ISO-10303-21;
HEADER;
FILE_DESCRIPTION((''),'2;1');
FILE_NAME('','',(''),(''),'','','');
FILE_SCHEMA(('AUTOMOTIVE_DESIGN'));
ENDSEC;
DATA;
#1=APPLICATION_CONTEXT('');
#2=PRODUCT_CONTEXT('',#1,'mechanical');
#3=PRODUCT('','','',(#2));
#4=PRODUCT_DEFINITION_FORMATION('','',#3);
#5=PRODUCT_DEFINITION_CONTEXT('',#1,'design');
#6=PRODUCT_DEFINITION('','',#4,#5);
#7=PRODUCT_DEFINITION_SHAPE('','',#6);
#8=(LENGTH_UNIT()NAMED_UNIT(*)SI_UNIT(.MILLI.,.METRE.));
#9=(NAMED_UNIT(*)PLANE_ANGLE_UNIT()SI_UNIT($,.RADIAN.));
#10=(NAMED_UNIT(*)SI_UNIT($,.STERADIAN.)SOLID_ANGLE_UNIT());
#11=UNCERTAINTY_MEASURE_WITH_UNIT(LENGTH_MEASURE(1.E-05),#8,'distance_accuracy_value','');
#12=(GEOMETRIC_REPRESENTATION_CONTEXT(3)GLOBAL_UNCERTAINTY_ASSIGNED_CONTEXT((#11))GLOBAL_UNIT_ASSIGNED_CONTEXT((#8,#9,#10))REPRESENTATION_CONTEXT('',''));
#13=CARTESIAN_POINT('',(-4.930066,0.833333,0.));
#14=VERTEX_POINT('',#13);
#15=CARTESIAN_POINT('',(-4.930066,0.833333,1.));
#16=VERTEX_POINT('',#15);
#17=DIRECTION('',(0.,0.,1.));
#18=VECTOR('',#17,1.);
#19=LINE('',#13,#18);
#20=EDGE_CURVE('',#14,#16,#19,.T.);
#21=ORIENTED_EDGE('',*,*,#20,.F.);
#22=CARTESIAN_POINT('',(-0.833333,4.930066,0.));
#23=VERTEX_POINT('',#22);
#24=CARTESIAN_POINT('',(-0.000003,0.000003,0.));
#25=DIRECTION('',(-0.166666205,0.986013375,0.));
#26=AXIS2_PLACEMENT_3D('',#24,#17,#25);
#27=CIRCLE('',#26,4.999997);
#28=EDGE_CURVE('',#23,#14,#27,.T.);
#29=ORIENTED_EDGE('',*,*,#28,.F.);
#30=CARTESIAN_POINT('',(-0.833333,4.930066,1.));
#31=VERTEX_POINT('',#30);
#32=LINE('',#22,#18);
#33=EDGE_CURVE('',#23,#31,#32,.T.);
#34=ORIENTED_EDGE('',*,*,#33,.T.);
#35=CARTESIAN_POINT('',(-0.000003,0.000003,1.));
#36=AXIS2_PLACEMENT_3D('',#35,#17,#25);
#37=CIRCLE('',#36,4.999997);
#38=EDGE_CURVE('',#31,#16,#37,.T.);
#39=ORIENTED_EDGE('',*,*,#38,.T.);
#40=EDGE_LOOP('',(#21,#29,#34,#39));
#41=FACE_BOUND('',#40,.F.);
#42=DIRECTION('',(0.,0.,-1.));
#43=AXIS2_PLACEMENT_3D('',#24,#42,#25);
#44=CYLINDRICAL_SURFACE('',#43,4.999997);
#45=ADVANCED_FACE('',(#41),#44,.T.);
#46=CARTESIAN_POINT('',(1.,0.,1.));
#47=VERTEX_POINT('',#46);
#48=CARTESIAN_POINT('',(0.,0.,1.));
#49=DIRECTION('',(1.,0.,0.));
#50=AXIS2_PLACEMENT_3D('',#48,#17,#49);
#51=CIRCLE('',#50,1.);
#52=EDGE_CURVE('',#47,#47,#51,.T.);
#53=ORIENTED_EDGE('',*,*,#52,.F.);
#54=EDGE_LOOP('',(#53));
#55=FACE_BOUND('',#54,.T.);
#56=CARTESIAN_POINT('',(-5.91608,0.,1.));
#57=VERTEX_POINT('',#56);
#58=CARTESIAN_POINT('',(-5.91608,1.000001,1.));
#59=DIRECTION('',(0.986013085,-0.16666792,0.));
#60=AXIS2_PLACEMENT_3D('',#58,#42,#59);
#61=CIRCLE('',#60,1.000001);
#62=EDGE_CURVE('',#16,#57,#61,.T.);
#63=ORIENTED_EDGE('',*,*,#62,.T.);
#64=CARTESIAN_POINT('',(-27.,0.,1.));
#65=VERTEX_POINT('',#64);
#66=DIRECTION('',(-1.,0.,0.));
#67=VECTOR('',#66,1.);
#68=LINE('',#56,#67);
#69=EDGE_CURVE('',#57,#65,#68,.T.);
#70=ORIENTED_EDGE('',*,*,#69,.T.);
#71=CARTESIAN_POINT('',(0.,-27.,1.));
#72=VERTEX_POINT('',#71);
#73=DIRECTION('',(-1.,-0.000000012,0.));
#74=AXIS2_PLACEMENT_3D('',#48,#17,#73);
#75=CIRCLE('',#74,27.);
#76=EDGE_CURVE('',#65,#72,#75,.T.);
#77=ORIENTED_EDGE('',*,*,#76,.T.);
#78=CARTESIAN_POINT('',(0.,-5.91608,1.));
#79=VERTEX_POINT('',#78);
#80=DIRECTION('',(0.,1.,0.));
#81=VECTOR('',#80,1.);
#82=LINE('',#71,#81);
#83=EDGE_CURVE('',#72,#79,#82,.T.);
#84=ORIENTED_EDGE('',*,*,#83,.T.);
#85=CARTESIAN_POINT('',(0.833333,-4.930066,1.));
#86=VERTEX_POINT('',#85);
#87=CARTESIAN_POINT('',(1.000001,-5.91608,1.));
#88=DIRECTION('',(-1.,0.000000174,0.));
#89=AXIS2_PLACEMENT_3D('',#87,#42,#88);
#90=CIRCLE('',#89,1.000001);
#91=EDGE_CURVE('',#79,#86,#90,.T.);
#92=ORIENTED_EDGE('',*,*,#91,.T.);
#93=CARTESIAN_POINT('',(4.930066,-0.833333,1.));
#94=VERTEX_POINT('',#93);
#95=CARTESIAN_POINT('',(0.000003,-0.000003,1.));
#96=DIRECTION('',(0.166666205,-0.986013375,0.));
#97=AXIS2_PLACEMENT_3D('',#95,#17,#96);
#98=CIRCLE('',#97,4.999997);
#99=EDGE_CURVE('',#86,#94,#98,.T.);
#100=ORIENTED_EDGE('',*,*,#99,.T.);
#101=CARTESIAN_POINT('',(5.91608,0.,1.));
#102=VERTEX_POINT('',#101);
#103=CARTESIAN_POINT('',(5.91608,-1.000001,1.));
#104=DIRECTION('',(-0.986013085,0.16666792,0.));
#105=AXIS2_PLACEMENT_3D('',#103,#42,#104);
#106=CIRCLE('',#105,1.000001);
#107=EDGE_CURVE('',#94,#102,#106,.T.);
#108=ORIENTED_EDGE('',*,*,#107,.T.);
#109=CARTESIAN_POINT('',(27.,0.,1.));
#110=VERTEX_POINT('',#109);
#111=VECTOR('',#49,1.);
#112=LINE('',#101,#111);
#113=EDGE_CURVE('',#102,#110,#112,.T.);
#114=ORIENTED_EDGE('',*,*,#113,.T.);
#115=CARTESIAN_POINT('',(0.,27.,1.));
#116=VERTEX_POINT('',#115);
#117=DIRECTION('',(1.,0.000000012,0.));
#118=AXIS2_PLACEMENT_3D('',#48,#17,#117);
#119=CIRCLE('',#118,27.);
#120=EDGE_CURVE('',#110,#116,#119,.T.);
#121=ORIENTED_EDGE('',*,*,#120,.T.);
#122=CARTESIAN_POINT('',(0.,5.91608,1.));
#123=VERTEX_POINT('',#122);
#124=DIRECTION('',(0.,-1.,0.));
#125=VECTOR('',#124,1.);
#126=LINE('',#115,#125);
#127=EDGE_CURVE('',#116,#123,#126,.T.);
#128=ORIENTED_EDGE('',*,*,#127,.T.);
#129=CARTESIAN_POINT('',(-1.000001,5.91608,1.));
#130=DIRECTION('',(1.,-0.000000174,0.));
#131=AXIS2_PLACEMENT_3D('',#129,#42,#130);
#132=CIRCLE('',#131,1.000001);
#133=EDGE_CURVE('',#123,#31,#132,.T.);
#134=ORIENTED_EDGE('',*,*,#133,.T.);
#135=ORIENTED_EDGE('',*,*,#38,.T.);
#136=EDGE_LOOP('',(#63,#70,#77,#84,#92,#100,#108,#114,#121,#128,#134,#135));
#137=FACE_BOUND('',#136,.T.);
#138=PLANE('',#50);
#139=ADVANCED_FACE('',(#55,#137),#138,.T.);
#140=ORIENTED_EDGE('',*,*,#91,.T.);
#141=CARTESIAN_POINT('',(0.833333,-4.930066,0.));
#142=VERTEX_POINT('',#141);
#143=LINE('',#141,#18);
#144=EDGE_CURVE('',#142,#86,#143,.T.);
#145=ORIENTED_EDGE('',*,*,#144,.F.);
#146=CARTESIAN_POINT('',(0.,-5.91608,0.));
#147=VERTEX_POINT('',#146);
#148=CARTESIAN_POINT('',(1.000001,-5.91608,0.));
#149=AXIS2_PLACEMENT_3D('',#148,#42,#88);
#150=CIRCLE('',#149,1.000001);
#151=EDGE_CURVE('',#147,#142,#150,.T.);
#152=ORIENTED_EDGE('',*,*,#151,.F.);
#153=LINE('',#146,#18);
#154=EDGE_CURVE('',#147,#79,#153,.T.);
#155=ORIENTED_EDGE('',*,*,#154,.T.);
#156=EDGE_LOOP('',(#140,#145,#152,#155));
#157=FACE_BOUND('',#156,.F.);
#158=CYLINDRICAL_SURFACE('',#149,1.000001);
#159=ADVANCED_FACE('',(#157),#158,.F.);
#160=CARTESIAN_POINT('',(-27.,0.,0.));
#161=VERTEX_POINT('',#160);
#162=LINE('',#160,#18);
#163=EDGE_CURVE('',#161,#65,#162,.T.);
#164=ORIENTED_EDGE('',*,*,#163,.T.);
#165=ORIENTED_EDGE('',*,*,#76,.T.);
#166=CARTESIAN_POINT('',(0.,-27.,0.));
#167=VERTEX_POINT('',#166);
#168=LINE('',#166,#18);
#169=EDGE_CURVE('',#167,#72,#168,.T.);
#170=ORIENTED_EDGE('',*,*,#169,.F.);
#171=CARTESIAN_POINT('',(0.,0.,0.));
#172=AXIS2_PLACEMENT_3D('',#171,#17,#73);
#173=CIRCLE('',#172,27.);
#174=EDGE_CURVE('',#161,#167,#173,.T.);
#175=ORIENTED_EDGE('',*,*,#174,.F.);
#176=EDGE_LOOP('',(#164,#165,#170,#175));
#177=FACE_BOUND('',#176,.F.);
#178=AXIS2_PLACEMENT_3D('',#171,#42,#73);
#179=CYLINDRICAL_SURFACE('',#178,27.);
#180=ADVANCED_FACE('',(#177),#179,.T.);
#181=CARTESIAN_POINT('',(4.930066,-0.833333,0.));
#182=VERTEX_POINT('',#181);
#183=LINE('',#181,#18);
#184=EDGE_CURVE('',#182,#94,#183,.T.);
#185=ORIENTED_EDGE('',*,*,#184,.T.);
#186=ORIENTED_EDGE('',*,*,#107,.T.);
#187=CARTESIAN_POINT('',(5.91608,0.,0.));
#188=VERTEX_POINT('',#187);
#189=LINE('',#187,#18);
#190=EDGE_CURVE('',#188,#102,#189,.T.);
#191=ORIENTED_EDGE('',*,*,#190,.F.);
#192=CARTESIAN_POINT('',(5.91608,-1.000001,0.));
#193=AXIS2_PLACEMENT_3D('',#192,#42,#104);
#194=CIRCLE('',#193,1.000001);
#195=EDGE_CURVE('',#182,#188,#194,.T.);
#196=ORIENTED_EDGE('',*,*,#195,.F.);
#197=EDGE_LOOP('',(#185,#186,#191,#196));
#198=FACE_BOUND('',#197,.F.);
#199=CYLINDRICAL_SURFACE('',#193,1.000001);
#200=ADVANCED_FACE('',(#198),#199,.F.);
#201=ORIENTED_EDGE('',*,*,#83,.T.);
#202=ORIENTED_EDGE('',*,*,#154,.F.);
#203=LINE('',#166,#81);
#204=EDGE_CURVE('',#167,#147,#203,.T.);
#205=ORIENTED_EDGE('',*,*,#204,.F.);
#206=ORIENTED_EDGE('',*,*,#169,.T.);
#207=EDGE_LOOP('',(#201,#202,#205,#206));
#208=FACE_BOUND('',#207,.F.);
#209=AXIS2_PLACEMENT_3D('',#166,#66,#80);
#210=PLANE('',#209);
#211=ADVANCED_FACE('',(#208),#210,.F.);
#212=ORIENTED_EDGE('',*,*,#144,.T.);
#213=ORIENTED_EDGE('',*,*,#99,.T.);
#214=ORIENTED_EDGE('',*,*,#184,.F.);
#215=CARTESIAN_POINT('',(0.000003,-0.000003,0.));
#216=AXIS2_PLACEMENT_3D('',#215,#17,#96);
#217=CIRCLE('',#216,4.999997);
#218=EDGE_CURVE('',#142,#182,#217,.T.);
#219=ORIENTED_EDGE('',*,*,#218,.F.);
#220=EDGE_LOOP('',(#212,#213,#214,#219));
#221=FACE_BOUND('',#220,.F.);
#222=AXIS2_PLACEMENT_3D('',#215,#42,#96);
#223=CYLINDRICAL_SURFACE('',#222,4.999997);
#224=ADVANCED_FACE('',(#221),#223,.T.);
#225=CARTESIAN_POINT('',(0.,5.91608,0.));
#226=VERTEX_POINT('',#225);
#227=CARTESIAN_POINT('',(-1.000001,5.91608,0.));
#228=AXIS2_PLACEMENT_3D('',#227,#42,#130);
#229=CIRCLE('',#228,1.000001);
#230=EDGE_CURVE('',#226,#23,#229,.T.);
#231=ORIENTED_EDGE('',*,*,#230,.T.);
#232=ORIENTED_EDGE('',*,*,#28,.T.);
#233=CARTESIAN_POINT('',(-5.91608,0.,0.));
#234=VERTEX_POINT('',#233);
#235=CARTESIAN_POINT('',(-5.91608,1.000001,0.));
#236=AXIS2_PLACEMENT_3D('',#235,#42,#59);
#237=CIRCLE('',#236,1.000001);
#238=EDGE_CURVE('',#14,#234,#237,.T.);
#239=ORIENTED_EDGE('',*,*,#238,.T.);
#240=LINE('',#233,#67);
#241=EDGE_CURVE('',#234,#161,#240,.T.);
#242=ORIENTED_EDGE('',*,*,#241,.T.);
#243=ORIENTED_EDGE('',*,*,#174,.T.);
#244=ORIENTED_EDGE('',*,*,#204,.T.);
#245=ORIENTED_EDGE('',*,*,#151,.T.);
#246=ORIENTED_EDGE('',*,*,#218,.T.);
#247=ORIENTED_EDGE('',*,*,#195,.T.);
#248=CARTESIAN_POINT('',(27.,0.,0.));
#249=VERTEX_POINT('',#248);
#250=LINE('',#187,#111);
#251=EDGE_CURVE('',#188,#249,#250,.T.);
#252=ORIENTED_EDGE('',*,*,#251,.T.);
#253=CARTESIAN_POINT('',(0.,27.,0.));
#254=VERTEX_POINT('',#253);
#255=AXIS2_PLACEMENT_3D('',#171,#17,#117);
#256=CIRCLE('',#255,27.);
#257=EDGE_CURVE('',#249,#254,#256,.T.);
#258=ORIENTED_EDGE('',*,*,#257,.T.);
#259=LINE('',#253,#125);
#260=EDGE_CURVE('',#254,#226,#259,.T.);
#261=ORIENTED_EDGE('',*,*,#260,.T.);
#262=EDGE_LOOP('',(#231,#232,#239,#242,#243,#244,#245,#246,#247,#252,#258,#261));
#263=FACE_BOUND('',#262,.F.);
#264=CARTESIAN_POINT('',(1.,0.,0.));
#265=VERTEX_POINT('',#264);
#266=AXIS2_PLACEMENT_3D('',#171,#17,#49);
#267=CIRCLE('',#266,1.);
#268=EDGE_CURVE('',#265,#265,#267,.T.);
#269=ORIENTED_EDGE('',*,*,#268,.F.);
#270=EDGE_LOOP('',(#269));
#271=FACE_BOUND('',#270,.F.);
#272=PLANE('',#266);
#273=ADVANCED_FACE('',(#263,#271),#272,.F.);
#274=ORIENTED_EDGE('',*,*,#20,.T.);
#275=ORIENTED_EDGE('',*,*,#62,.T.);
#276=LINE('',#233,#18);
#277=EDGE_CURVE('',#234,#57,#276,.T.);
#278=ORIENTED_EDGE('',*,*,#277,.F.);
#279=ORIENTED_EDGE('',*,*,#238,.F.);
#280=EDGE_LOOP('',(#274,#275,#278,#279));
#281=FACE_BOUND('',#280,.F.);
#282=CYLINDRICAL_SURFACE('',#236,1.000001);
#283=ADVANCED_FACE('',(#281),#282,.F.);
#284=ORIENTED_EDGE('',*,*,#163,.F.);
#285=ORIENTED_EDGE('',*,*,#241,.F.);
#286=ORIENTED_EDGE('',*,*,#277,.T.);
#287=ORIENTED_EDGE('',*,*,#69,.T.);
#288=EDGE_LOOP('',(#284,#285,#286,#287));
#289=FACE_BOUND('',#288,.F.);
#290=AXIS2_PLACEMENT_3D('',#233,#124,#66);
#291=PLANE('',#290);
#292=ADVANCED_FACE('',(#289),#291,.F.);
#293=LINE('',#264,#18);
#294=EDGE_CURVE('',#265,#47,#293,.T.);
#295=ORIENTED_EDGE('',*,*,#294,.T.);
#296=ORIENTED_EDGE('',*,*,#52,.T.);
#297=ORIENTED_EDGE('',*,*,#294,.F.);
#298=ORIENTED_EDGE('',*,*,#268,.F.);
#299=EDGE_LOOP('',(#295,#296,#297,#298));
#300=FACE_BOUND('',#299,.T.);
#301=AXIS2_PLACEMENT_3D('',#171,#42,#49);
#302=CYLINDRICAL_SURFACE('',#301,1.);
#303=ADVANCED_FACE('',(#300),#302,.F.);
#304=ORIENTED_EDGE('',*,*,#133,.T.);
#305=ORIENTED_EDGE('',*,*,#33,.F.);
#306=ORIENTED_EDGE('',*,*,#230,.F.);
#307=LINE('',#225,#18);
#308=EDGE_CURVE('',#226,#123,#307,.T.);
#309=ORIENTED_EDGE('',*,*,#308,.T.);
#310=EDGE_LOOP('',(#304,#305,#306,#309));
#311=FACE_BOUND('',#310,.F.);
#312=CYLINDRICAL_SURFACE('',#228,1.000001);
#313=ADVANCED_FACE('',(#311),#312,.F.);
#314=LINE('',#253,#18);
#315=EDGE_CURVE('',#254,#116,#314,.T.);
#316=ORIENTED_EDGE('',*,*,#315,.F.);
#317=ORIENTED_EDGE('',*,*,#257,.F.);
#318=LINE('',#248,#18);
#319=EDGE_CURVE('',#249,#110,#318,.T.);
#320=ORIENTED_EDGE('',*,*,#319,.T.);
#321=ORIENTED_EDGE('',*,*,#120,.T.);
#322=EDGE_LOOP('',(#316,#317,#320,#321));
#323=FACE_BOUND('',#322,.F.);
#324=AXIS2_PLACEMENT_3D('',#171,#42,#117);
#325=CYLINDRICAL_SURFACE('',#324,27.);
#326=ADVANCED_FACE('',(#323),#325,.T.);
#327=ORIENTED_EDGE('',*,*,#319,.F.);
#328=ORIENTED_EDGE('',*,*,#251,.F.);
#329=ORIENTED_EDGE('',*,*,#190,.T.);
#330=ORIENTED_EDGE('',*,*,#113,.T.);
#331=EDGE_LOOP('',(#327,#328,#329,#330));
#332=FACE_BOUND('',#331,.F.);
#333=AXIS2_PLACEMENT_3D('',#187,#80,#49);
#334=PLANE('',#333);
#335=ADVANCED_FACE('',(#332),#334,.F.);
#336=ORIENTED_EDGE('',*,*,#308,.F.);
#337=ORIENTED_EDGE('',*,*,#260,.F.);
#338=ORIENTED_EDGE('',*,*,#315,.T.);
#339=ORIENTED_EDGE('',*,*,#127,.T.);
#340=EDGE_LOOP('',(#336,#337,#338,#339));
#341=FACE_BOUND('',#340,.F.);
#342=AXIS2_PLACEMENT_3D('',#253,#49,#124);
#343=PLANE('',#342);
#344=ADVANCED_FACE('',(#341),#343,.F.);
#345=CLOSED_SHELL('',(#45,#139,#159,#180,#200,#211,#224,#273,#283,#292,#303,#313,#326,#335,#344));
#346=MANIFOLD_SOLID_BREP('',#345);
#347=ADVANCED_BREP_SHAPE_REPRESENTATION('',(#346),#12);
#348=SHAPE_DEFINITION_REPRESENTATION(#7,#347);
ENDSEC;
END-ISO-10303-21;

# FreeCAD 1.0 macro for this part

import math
import FreeCAD as App
import Part
import Sketcher

V = App.Vector
Q = App.Units.Quantity

doc = App.newDocument("Part")
params = doc.addObject("Spreadsheet::Sheet", "Params")
for row, (alias, value) in enumerate([
    ("sketch1_diameter", "2 mm"),
    ("sketch1_radius", "27 mm"),
    ("pad1_length", "1 mm"),
], start=1):
    params.set(f"A{row}", alias)
    params.set(f"B{row}", "=" + value)
    params.setAlias(f"B{row}", alias)

body = doc.addObject("PartDesign::Body", "Body")

sketch1 = doc.addObject("Sketcher::SketchObject", "Sketch")
body.addObject(sketch1)
sketch1.AttachmentSupport = (doc.XY_Plane, [""])
sketch1.MapMode = "FlatFace"
sketch1.addGeometry(Part.ArcOfCircle(Part.Circle(V(-1, 5.9, 0), V(0, 0, 1), 1), math.radians(-80), math.radians(0)), False)
sketch1.addGeometry(Part.ArcOfCircle(Part.Circle(V(0, 0, 0), V(0, 0, 1), 5), math.radians(100), math.radians(170)), False)
sketch1.addGeometry(Part.ArcOfCircle(Part.Circle(V(-5.9, 1, 0), V(0, 0, 1), 1), math.radians(-90), math.radians(-10)), False)
sketch1.addGeometry(Part.LineSegment(V(-5.9, 0, 0), V(-27, 0, 0)), False)
sketch1.addGeometry(Part.ArcOfCircle(Part.Circle(V(0, 0, 0), V(0, 0, 1), 27), math.radians(-180), math.radians(-90)), False)
sketch1.addGeometry(Part.LineSegment(V(0, -27, 0), V(0, -5.9, 0)), False)
sketch1.addGeometry(Part.ArcOfCircle(Part.Circle(V(1, -5.9, 0), V(0, 0, 1), 1), math.radians(100), math.radians(180)), False)
sketch1.addGeometry(Part.ArcOfCircle(Part.Circle(V(0, 0, 0), V(0, 0, 1), 5), math.radians(-80), math.radians(-10)), False)
sketch1.addGeometry(Part.ArcOfCircle(Part.Circle(V(5.9, -1, 0), V(0, 0, 1), 1), math.radians(90), math.radians(170)), False)
sketch1.addGeometry(Part.LineSegment(V(5.9, 0, 0), V(27, 0, 0)), False)
sketch1.addGeometry(Part.ArcOfCircle(Part.Circle(V(0, 0, 0), V(0, 0, 1), 27), math.radians(0), math.radians(90)), False)
sketch1.addGeometry(Part.LineSegment(V(0, 27, 0), V(0, 5.9, 0)), False)
sketch1.addGeometry(Part.Circle(V(0, 0, 0), V(0, 0, 1), 1), False)
sketch1.addConstraint(Sketcher.Constraint("Tangent", 0, 1, 1, 1))
sketch1.addConstraint(Sketcher.Constraint("Tangent", 1, 2, 2, 2))
sketch1.addConstraint(Sketcher.Constraint("Tangent", 2, 1, 3, 1))
sketch1.addConstraint(Sketcher.Constraint("Coincident", 3, 2, 4, 1))
sketch1.addConstraint(Sketcher.Constraint("Coincident", 4, 2, 5, 1))
sketch1.addConstraint(Sketcher.Constraint("Tangent", 5, 2, 6, 2))
sketch1.addConstraint(Sketcher.Constraint("Tangent", 6, 1, 7, 1))
sketch1.addConstraint(Sketcher.Constraint("Tangent", 7, 2, 8, 2))
sketch1.addConstraint(Sketcher.Constraint("Tangent", 8, 1, 9, 1))
sketch1.addConstraint(Sketcher.Constraint("Coincident", 9, 2, 10, 1))
sketch1.addConstraint(Sketcher.Constraint("Coincident", 10, 2, 11, 1))
sketch1.addConstraint(Sketcher.Constraint("Tangent", 11, 2, 0, 2))
sketch1.addConstraint(Sketcher.Constraint("Horizontal", 3))
sketch1.addConstraint(Sketcher.Constraint("Vertical", 5))
sketch1.addConstraint(Sketcher.Constraint("Horizontal", 9))
sketch1.addConstraint(Sketcher.Constraint("Vertical", 11))
sketch1.addConstraint(Sketcher.Constraint("Coincident", 1, 3, -1, 1))
sketch1.addConstraint(Sketcher.Constraint("Coincident", 4, 3, -1, 1))
sketch1.addConstraint(Sketcher.Constraint("Coincident", 7, 3, -1, 1))
sketch1.addConstraint(Sketcher.Constraint("Coincident", 10, 3, -1, 1))
sketch1.addConstraint(Sketcher.Constraint("Coincident", 12, 3, -1, 1))
sketch1.addConstraint(Sketcher.Constraint("Equal", 0, 2))
sketch1.addConstraint(Sketcher.Constraint("Equal", 2, 6))
sketch1.addConstraint(Sketcher.Constraint("Equal", 1, 7))
sketch1.addConstraint(Sketcher.Constraint("Equal", 6, 8))
sketch1.addConstraint(Sketcher.Constraint("Equal", 4, 10))
sketch1.addConstraint(Sketcher.Constraint("Equal", 8, 12))
sketch1.addConstraint(Sketcher.Constraint("Symmetric", 2, 1, 8, 1, -2))
sketch1.addConstraint(Sketcher.Constraint("Symmetric", 5, 2, 11, 2, -1))
sketch1.addConstraint(Sketcher.Constraint("Diameter", 12, Q("2 mm")))
sketch1.addConstraint(Sketcher.Constraint("Radius", 4, Q("27 mm")))
sketch1.addConstraint(Sketcher.Constraint("Radius", 1, Q("4.999997 mm")))
sketch1.setExpression("Constraints[29]", "Params.sketch1_diameter")
sketch1.setExpression("Constraints[30]", "Params.sketch1_radius")
pad1 = doc.addObject("PartDesign::Pad", "Pad")
body.addObject(pad1)
pad1.Profile = sketch1
pad1.setExpression("Length", "Params.pad1_length")

doc.recompute()
